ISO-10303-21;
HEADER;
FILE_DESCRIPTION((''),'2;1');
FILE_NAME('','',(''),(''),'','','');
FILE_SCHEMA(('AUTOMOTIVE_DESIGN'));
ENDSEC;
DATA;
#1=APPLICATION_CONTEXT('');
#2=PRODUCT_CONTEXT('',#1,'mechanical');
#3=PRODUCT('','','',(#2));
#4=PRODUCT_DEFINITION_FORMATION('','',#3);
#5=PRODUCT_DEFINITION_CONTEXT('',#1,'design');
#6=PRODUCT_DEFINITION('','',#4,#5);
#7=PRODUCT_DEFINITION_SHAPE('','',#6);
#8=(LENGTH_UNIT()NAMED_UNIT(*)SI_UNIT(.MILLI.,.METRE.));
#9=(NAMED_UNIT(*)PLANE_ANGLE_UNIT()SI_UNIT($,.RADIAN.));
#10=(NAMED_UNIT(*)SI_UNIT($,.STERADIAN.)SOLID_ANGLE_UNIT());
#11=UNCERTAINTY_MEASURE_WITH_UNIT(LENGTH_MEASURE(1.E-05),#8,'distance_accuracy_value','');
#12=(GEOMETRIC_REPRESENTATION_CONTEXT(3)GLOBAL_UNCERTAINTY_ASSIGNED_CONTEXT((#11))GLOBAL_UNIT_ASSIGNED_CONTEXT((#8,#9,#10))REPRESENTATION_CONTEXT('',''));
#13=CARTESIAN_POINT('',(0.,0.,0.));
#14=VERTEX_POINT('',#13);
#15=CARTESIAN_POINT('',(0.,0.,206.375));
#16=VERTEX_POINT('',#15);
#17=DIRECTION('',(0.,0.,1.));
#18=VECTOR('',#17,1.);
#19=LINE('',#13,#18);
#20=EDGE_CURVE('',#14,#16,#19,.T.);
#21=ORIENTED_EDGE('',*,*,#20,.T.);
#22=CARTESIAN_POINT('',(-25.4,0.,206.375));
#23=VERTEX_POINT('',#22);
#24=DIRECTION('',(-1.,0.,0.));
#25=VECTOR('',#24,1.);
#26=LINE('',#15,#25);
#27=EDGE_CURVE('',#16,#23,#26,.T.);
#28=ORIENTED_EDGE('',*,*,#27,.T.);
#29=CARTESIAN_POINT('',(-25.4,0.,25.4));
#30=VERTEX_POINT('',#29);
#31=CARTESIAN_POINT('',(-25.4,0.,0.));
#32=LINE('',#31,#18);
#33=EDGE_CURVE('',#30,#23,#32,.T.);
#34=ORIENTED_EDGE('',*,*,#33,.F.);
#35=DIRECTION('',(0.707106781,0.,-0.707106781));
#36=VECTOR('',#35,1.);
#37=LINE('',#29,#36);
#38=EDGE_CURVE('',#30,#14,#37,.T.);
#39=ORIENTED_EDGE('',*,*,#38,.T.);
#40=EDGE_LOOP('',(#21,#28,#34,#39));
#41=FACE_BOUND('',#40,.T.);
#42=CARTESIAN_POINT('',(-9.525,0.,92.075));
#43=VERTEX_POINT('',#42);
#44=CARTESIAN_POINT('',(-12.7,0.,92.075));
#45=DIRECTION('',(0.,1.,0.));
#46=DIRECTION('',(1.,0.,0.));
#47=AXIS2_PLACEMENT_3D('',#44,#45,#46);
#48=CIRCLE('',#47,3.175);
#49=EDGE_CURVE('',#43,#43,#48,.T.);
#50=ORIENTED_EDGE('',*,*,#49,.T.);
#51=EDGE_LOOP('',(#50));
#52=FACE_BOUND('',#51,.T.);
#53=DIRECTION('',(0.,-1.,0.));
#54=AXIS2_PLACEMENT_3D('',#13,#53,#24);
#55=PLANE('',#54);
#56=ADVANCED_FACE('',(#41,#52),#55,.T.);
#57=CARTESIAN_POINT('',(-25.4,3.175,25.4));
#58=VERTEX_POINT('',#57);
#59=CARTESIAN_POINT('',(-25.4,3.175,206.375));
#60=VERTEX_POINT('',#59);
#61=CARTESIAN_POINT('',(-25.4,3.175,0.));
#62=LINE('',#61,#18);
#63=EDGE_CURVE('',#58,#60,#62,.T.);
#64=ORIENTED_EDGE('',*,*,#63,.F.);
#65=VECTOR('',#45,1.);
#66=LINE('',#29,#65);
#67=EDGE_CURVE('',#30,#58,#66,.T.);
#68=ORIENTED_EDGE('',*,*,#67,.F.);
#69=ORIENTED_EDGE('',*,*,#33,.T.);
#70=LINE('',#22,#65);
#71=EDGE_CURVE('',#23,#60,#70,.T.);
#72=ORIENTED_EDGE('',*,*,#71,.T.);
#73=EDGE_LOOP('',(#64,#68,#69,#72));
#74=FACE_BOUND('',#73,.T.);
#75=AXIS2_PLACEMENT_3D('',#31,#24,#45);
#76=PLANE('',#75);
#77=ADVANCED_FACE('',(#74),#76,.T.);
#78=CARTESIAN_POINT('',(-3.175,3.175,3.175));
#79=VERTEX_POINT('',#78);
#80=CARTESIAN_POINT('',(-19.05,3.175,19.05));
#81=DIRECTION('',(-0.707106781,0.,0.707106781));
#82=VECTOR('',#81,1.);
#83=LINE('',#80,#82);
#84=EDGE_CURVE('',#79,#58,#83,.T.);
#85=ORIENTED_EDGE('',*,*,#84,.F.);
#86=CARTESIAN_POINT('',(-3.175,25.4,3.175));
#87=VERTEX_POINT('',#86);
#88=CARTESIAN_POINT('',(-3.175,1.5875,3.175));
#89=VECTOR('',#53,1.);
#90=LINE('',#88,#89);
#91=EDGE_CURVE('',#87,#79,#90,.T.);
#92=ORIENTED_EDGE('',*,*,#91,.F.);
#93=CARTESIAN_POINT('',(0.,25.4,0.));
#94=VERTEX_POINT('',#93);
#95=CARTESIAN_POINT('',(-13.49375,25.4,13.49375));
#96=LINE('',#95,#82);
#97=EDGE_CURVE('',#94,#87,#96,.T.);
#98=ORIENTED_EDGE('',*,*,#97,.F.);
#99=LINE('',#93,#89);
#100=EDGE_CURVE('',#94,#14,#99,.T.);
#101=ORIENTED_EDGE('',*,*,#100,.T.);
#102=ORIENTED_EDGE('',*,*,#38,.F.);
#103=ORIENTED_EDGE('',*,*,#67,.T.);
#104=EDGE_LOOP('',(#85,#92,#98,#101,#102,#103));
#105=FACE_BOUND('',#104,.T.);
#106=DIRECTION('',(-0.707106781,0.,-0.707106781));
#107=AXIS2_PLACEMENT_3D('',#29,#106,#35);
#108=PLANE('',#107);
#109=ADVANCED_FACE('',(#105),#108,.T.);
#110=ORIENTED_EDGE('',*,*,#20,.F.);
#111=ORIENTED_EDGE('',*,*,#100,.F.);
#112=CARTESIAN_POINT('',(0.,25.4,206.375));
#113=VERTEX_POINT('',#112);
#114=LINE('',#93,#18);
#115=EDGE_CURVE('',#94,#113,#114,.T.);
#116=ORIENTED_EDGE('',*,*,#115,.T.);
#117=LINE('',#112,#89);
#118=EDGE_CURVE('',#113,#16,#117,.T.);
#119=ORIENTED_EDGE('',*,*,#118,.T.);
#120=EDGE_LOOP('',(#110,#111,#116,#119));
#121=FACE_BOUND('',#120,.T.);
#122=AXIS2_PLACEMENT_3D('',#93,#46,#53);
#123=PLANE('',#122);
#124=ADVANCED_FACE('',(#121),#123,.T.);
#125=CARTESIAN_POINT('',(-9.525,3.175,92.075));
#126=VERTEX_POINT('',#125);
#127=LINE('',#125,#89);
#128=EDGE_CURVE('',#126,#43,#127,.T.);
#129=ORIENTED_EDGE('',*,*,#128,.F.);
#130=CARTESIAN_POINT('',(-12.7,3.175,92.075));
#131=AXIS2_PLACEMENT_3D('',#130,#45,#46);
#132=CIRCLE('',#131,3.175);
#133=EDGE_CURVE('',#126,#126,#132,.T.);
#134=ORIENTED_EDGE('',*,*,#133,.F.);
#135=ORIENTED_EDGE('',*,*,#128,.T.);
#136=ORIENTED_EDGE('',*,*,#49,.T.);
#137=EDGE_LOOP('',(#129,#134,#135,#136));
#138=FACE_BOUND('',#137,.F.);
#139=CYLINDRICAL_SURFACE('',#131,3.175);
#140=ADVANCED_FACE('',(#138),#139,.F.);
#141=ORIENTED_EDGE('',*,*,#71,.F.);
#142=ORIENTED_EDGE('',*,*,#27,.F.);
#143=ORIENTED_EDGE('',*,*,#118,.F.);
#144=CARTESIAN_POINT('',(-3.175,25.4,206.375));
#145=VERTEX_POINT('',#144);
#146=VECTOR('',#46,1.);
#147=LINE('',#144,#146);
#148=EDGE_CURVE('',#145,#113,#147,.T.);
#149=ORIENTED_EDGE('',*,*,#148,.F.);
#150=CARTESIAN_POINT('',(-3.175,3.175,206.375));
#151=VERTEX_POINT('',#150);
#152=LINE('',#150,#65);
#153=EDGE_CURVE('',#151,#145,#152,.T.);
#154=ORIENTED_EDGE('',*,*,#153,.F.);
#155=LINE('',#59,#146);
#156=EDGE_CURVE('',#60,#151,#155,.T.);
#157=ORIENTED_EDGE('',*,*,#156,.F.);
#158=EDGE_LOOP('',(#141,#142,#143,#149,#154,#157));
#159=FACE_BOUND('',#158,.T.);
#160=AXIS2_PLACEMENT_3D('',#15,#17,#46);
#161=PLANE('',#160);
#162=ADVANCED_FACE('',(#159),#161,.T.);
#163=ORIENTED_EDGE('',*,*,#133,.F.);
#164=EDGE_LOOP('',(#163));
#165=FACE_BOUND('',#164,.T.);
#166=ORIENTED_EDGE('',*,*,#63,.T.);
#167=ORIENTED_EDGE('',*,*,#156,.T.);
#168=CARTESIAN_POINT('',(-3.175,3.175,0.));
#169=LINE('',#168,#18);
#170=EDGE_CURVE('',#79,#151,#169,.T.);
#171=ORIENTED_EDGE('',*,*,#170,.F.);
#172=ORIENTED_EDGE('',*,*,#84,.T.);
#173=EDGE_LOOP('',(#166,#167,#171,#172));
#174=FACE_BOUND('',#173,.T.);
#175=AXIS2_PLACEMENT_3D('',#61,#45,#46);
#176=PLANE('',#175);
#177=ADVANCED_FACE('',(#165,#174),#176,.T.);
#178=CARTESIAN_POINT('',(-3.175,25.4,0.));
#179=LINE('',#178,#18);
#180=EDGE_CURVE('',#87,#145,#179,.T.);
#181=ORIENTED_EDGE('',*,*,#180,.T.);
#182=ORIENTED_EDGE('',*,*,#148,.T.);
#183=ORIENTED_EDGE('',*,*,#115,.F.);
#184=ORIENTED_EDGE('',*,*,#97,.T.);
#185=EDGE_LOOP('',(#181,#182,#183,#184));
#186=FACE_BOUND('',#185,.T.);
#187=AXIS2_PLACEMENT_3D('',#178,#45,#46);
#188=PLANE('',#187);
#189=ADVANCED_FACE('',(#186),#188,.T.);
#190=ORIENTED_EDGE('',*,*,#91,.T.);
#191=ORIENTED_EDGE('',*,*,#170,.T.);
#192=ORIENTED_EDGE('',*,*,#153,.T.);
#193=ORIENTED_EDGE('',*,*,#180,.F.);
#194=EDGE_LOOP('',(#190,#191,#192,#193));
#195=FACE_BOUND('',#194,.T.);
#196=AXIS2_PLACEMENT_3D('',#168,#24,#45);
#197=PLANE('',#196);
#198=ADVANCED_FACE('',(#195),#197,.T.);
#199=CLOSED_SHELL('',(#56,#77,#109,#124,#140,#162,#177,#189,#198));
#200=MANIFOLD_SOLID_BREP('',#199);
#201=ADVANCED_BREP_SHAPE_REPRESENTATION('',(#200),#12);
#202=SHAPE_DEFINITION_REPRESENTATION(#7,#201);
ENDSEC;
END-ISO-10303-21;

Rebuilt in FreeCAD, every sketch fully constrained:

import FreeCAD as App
import Part
import Sketcher
Q = App.Units.Quantity


def add_polygon(sketch, points):
    """Adds a closed chain of lines whose ends are joined by coincident constraints."""
    first, n = sketch.GeometryCount, len(points)
    for a, b in zip(points, points[1:] + points[:1]):
        sketch.addGeometry(Part.LineSegment(App.Vector(*a, 0), App.Vector(*b, 0)), False)
    for i in range(n):
        sketch.addConstraint(Sketcher.Constraint("Coincident", first + i, 2, first + (i + 1) % n, 1))

doc = App.newDocument("Part")
body = doc.addObject("PartDesign::Body", "Body")

sketch1 = doc.addObject("Sketcher::SketchObject", "Sketch")
body.addObject(sketch1)
sketch1.AttachmentSupport = (doc.XY_Plane, [""])
sketch1.MapMode = "FlatFace"
add_polygon(sketch1, [(-3.2, 3.2), (-25.4, 3.2), (-25.4, 0), (0, 0), (0, 25.4), (-3.2, 25.4)])
sketch1.addConstraint([
    Sketcher.Constraint("Horizontal", 0),
    Sketcher.Constraint("Vertical", 1),
    Sketcher.Constraint("Horizontal", 2),
    Sketcher.Constraint("Vertical", 3),
    Sketcher.Constraint("Horizontal", 4),
    Sketcher.Constraint("Vertical", 5),
    Sketcher.Constraint("Coincident", 2, 2, -1, 1),
    Sketcher.Constraint("Equal", 4, 1),
    Sketcher.Constraint("Equal", 2, 3),
    Sketcher.Constraint("DistanceX", 2, 1, 2, 2, Q("1 in")),
    Sketcher.Constraint("DistanceX", 4, 2, 4, 1, Q("0.125 in")),
])
pad1 = doc.addObject("PartDesign::Pad", "Pad")
body.addObject(pad1)
pad1.Profile = sketch1
pad1.Length = Q("8.125 in")

sketch2 = doc.addObject("Sketcher::SketchObject", "Sketch001")
body.addObject(sketch2)
sketch2.AttachmentSupport = (doc.XZ_Plane, [""])
sketch2.MapMode = "FlatFace"
add_polygon(sketch2, [(-25, 25), (-25, 0), (0, 0)])
sketch2.addConstraint([
    Sketcher.Constraint("Vertical", 0),
    Sketcher.Constraint("Horizontal", 1),
    Sketcher.Constraint("Coincident", 1, 2, -1, 1),
    Sketcher.Constraint("Equal", 1, 0),
    Sketcher.Constraint("DistanceX", 1, 1, 1, 2, Q("1 in")),
])
pocket1 = doc.addObject("PartDesign::Pocket", "Pocket")
body.addObject(pocket1)
pocket1.Profile = sketch2
pocket1.Length = Q("8 in")

sketch3 = doc.addObject("Sketcher::SketchObject", "Sketch002")
body.addObject(sketch3)
sketch3.AttachmentSupport = (doc.XZ_Plane, [""])
sketch3.MapMode = "FlatFace"
sketch3.AttachmentOffset = App.Placement(App.Vector(0, 0, -0.125 * 25.4), App.Rotation())
sketch3.addGeometry(Part.Circle(App.Vector(-12.7, 92.1, 0), App.Vector(0, 0, 1), 3.2), False)
sketch3.addConstraint([
    Sketcher.Constraint("Diameter", 0, Q("0.25 in")),
    Sketcher.Constraint("DistanceX", 0, 3, -1, 1, Q("0.5 in")),
    Sketcher.Constraint("DistanceY", -1, 1, 0, 3, Q("3.625 in")),
])
pocket2 = doc.addObject("PartDesign::Pocket", "Pocket001")
body.addObject(pocket2)
pocket2.Profile = sketch3
pocket2.Length = Q("1 in")
pocket2.Reversed = True

doc.recompute()
